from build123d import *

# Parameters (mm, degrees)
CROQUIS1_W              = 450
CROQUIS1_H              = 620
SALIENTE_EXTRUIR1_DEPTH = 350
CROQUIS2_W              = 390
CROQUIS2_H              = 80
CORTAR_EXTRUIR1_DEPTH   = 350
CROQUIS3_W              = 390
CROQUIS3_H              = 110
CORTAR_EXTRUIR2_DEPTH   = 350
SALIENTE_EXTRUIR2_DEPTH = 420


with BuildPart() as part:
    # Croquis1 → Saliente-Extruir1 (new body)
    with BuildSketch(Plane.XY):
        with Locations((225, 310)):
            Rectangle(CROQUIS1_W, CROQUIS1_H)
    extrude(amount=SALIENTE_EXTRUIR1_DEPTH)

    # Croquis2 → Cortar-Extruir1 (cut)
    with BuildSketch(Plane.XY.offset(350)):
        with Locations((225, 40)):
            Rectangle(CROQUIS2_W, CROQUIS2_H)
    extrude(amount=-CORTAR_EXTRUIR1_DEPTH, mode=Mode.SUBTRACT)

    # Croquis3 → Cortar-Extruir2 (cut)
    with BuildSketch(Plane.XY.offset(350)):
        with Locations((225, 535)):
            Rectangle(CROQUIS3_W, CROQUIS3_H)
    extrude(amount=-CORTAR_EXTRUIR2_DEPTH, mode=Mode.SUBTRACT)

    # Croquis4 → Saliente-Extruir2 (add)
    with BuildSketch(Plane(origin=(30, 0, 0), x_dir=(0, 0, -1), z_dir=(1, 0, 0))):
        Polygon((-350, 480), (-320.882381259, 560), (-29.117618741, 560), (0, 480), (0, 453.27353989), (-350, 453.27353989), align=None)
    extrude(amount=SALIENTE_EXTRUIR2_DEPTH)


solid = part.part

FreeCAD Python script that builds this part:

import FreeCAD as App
import Part
import Sketcher
Q = App.Units.Quantity


def add_polygon(sketch, points):
    """Adds a closed chain of lines whose ends are joined by coincident constraints."""
    first, n = sketch.GeometryCount, len(points)
    for a, b in zip(points, points[1:] + points[:1]):
        sketch.addGeometry(Part.LineSegment(App.Vector(*a, 0), App.Vector(*b, 0)), False)
    for i in range(n):
        sketch.addConstraint(Sketcher.Constraint("Coincident", first + i, 2, first + (i + 1) % n, 1))

doc = App.newDocument("Part")
params = doc.addObject("Spreadsheet::Sheet", "Params")
for row, (alias, value) in enumerate([
    ("sketch1_width", "450 mm"),
    ("sketch1_height", "620 mm"),
    ("pad1_length", "350 mm"),
    ("sketch2_width", "390 mm"),
    ("sketch2_height", "80 mm"),
    ("pocket1_length", "350 mm"),
    ("sketch3_width", "390 mm"),
    ("sketch3_height", "110 mm"),
    ("pocket2_length", "350 mm"),
    ("sketch4_height", "350 mm"),
    ("pad2_length", "420 mm"),
], start=1):
    params.set(f"A{row}", alias)
    params.set(f"B{row}", "=" + value)
    params.setAlias(f"B{row}", alias)

body = doc.addObject("PartDesign::Body", "Body")

# Sketch on XY plane
sketch1 = body.newObject("Sketcher::SketchObject", "Sketch")
sketch1.AttachmentSupport = (doc.getObject("XY_Plane"), [""])
sketch1.MapMode = "FlatFace"
add_polygon(sketch1, [(0, 620), (0, 0), (450, 0), (450, 620)])  # lines 0-3
sketch1.addConstraint([
    Sketcher.Constraint("Vertical", 0),
    Sketcher.Constraint("Horizontal", 1),
    Sketcher.Constraint("Vertical", 2),
    Sketcher.Constraint("Horizontal", 3),
    Sketcher.Constraint("Coincident", 0, 2, -1, 1),
    Sketcher.Constraint("DistanceX", 1, 1, 1, 2, 450.0),
    Sketcher.Constraint("DistanceY", 0, 2, 0, 1, 620.0),
])
sketch1.setExpression("Constraints[9]", "Params.sketch1_width")
sketch1.setExpression("Constraints[10]", "Params.sketch1_height")
pad1 = body.newObject("PartDesign::Pad", "Pad")
pad1.Profile = sketch1
pad1.setExpression("Length", "Params.pad1_length")

# Sketch on XY plane
sketch2 = body.newObject("Sketcher::SketchObject", "Sketch001")
sketch2.AttachmentSupport = (doc.getObject("XY_Plane"), [""])
sketch2.MapMode = "FlatFace"
sketch2.AttachmentOffset = App.Placement(App.Vector(0, 0, 350), App.Rotation())
add_polygon(sketch2, [(30, 80), (30, 0), (420, 0), (420, 80)])  # lines 0-3
sketch2.addConstraint([
    Sketcher.Constraint("Vertical", 0),
    Sketcher.Constraint("Horizontal", 1),
    Sketcher.Constraint("Vertical", 2),
    Sketcher.Constraint("Horizontal", 3),
    Sketcher.Constraint("PointOnObject", 0, 2, -1),
    Sketcher.Constraint("DistanceX", 1, 1, 1, 2, 390.0),
    Sketcher.Constraint("DistanceY", 0, 2, 0, 1, 80.0),
    Sketcher.Constraint("DistanceX", -1, 1, 0, 2, 30.0),
])
sketch2.setExpression("Constraints[9]", "Params.sketch2_width")
sketch2.setExpression("Constraints[10]", "Params.sketch2_height")
pocket1 = body.newObject("PartDesign::Pocket", "Pocket")
pocket1.Profile = sketch2
pocket1.setExpression("Length", "Params.pocket1_length")

# Sketch on XY plane
sketch3 = body.newObject("Sketcher::SketchObject", "Sketch002")
sketch3.AttachmentSupport = (doc.getObject("XY_Plane"), [""])
sketch3.MapMode = "FlatFace"
sketch3.AttachmentOffset = App.Placement(App.Vector(0, 0, 350), App.Rotation())
add_polygon(sketch3, [(30, 590), (30, 480), (420, 480), (420, 590)])  # lines 0-3
sketch3.addConstraint([
    Sketcher.Constraint("Vertical", 0),
    Sketcher.Constraint("Horizontal", 1),
    Sketcher.Constraint("Vertical", 2),
    Sketcher.Constraint("Horizontal", 3),
    Sketcher.Constraint("DistanceX", 1, 1, 1, 2, 390.0),
    Sketcher.Constraint("DistanceY", 0, 2, 0, 1, 110.0),
    Sketcher.Constraint("DistanceX", -1, 1, 0, 2, 30.0),
    Sketcher.Constraint("DistanceY", -1, 1, 0, 2, 480.0),
])
sketch3.setExpression("Constraints[8]", "Params.sketch3_width")
sketch3.setExpression("Constraints[9]", "Params.sketch3_height")
pocket2 = body.newObject("PartDesign::Pocket", "Pocket001")
pocket2.Profile = sketch3
pocket2.setExpression("Length", "Params.pocket2_length")

# Sketch on YZ plane
sketch4 = body.newObject("Sketcher::SketchObject", "Sketch003")
sketch4.AttachmentSupport = (doc.getObject("YZ_Plane"), [""])
sketch4.MapMode = "FlatFace"
sketch4.AttachmentOffset = App.Placement(App.Vector(0, 0, 30), App.Rotation())
add_polygon(sketch4, [(560, 321), (480, 350), (453, 350), (453, 0), (480, 0), (560, 29)])  # lines 0-5
sketch4.addConstraint([
    Sketcher.Constraint("Horizontal", 1),
    Sketcher.Constraint("Vertical", 2),
    Sketcher.Constraint("Horizontal", 3),
    Sketcher.Constraint("Vertical", 5),
    Sketcher.Constraint("PointOnObject", 2, 2, -1),
    Sketcher.Constraint("Vertical", 0, 2, 3, 2),
    Sketcher.Constraint("Equal", 0, 4),
    Sketcher.Constraint("DistanceY", 2, 2, 2, 1, 350.0),
    Sketcher.Constraint("Angle", 0, Q("160 deg")),
    Sketcher.Constraint("DistanceX", -1, 1, 0, 2, 480.0),
    Sketcher.Constraint("DistanceX", -1, 1, 4, 2, 560.0),
    Sketcher.Constraint("DistanceX", 1, 2, 1, 1, 26.72646),
])
sketch4.setExpression("Constraints[13]", "Params.sketch4_height")
pad2 = body.newObject("PartDesign::Pad", "Pad001")
pad2.Profile = sketch4
pad2.setExpression("Length", "Params.pad2_length")

doc.recompute()
